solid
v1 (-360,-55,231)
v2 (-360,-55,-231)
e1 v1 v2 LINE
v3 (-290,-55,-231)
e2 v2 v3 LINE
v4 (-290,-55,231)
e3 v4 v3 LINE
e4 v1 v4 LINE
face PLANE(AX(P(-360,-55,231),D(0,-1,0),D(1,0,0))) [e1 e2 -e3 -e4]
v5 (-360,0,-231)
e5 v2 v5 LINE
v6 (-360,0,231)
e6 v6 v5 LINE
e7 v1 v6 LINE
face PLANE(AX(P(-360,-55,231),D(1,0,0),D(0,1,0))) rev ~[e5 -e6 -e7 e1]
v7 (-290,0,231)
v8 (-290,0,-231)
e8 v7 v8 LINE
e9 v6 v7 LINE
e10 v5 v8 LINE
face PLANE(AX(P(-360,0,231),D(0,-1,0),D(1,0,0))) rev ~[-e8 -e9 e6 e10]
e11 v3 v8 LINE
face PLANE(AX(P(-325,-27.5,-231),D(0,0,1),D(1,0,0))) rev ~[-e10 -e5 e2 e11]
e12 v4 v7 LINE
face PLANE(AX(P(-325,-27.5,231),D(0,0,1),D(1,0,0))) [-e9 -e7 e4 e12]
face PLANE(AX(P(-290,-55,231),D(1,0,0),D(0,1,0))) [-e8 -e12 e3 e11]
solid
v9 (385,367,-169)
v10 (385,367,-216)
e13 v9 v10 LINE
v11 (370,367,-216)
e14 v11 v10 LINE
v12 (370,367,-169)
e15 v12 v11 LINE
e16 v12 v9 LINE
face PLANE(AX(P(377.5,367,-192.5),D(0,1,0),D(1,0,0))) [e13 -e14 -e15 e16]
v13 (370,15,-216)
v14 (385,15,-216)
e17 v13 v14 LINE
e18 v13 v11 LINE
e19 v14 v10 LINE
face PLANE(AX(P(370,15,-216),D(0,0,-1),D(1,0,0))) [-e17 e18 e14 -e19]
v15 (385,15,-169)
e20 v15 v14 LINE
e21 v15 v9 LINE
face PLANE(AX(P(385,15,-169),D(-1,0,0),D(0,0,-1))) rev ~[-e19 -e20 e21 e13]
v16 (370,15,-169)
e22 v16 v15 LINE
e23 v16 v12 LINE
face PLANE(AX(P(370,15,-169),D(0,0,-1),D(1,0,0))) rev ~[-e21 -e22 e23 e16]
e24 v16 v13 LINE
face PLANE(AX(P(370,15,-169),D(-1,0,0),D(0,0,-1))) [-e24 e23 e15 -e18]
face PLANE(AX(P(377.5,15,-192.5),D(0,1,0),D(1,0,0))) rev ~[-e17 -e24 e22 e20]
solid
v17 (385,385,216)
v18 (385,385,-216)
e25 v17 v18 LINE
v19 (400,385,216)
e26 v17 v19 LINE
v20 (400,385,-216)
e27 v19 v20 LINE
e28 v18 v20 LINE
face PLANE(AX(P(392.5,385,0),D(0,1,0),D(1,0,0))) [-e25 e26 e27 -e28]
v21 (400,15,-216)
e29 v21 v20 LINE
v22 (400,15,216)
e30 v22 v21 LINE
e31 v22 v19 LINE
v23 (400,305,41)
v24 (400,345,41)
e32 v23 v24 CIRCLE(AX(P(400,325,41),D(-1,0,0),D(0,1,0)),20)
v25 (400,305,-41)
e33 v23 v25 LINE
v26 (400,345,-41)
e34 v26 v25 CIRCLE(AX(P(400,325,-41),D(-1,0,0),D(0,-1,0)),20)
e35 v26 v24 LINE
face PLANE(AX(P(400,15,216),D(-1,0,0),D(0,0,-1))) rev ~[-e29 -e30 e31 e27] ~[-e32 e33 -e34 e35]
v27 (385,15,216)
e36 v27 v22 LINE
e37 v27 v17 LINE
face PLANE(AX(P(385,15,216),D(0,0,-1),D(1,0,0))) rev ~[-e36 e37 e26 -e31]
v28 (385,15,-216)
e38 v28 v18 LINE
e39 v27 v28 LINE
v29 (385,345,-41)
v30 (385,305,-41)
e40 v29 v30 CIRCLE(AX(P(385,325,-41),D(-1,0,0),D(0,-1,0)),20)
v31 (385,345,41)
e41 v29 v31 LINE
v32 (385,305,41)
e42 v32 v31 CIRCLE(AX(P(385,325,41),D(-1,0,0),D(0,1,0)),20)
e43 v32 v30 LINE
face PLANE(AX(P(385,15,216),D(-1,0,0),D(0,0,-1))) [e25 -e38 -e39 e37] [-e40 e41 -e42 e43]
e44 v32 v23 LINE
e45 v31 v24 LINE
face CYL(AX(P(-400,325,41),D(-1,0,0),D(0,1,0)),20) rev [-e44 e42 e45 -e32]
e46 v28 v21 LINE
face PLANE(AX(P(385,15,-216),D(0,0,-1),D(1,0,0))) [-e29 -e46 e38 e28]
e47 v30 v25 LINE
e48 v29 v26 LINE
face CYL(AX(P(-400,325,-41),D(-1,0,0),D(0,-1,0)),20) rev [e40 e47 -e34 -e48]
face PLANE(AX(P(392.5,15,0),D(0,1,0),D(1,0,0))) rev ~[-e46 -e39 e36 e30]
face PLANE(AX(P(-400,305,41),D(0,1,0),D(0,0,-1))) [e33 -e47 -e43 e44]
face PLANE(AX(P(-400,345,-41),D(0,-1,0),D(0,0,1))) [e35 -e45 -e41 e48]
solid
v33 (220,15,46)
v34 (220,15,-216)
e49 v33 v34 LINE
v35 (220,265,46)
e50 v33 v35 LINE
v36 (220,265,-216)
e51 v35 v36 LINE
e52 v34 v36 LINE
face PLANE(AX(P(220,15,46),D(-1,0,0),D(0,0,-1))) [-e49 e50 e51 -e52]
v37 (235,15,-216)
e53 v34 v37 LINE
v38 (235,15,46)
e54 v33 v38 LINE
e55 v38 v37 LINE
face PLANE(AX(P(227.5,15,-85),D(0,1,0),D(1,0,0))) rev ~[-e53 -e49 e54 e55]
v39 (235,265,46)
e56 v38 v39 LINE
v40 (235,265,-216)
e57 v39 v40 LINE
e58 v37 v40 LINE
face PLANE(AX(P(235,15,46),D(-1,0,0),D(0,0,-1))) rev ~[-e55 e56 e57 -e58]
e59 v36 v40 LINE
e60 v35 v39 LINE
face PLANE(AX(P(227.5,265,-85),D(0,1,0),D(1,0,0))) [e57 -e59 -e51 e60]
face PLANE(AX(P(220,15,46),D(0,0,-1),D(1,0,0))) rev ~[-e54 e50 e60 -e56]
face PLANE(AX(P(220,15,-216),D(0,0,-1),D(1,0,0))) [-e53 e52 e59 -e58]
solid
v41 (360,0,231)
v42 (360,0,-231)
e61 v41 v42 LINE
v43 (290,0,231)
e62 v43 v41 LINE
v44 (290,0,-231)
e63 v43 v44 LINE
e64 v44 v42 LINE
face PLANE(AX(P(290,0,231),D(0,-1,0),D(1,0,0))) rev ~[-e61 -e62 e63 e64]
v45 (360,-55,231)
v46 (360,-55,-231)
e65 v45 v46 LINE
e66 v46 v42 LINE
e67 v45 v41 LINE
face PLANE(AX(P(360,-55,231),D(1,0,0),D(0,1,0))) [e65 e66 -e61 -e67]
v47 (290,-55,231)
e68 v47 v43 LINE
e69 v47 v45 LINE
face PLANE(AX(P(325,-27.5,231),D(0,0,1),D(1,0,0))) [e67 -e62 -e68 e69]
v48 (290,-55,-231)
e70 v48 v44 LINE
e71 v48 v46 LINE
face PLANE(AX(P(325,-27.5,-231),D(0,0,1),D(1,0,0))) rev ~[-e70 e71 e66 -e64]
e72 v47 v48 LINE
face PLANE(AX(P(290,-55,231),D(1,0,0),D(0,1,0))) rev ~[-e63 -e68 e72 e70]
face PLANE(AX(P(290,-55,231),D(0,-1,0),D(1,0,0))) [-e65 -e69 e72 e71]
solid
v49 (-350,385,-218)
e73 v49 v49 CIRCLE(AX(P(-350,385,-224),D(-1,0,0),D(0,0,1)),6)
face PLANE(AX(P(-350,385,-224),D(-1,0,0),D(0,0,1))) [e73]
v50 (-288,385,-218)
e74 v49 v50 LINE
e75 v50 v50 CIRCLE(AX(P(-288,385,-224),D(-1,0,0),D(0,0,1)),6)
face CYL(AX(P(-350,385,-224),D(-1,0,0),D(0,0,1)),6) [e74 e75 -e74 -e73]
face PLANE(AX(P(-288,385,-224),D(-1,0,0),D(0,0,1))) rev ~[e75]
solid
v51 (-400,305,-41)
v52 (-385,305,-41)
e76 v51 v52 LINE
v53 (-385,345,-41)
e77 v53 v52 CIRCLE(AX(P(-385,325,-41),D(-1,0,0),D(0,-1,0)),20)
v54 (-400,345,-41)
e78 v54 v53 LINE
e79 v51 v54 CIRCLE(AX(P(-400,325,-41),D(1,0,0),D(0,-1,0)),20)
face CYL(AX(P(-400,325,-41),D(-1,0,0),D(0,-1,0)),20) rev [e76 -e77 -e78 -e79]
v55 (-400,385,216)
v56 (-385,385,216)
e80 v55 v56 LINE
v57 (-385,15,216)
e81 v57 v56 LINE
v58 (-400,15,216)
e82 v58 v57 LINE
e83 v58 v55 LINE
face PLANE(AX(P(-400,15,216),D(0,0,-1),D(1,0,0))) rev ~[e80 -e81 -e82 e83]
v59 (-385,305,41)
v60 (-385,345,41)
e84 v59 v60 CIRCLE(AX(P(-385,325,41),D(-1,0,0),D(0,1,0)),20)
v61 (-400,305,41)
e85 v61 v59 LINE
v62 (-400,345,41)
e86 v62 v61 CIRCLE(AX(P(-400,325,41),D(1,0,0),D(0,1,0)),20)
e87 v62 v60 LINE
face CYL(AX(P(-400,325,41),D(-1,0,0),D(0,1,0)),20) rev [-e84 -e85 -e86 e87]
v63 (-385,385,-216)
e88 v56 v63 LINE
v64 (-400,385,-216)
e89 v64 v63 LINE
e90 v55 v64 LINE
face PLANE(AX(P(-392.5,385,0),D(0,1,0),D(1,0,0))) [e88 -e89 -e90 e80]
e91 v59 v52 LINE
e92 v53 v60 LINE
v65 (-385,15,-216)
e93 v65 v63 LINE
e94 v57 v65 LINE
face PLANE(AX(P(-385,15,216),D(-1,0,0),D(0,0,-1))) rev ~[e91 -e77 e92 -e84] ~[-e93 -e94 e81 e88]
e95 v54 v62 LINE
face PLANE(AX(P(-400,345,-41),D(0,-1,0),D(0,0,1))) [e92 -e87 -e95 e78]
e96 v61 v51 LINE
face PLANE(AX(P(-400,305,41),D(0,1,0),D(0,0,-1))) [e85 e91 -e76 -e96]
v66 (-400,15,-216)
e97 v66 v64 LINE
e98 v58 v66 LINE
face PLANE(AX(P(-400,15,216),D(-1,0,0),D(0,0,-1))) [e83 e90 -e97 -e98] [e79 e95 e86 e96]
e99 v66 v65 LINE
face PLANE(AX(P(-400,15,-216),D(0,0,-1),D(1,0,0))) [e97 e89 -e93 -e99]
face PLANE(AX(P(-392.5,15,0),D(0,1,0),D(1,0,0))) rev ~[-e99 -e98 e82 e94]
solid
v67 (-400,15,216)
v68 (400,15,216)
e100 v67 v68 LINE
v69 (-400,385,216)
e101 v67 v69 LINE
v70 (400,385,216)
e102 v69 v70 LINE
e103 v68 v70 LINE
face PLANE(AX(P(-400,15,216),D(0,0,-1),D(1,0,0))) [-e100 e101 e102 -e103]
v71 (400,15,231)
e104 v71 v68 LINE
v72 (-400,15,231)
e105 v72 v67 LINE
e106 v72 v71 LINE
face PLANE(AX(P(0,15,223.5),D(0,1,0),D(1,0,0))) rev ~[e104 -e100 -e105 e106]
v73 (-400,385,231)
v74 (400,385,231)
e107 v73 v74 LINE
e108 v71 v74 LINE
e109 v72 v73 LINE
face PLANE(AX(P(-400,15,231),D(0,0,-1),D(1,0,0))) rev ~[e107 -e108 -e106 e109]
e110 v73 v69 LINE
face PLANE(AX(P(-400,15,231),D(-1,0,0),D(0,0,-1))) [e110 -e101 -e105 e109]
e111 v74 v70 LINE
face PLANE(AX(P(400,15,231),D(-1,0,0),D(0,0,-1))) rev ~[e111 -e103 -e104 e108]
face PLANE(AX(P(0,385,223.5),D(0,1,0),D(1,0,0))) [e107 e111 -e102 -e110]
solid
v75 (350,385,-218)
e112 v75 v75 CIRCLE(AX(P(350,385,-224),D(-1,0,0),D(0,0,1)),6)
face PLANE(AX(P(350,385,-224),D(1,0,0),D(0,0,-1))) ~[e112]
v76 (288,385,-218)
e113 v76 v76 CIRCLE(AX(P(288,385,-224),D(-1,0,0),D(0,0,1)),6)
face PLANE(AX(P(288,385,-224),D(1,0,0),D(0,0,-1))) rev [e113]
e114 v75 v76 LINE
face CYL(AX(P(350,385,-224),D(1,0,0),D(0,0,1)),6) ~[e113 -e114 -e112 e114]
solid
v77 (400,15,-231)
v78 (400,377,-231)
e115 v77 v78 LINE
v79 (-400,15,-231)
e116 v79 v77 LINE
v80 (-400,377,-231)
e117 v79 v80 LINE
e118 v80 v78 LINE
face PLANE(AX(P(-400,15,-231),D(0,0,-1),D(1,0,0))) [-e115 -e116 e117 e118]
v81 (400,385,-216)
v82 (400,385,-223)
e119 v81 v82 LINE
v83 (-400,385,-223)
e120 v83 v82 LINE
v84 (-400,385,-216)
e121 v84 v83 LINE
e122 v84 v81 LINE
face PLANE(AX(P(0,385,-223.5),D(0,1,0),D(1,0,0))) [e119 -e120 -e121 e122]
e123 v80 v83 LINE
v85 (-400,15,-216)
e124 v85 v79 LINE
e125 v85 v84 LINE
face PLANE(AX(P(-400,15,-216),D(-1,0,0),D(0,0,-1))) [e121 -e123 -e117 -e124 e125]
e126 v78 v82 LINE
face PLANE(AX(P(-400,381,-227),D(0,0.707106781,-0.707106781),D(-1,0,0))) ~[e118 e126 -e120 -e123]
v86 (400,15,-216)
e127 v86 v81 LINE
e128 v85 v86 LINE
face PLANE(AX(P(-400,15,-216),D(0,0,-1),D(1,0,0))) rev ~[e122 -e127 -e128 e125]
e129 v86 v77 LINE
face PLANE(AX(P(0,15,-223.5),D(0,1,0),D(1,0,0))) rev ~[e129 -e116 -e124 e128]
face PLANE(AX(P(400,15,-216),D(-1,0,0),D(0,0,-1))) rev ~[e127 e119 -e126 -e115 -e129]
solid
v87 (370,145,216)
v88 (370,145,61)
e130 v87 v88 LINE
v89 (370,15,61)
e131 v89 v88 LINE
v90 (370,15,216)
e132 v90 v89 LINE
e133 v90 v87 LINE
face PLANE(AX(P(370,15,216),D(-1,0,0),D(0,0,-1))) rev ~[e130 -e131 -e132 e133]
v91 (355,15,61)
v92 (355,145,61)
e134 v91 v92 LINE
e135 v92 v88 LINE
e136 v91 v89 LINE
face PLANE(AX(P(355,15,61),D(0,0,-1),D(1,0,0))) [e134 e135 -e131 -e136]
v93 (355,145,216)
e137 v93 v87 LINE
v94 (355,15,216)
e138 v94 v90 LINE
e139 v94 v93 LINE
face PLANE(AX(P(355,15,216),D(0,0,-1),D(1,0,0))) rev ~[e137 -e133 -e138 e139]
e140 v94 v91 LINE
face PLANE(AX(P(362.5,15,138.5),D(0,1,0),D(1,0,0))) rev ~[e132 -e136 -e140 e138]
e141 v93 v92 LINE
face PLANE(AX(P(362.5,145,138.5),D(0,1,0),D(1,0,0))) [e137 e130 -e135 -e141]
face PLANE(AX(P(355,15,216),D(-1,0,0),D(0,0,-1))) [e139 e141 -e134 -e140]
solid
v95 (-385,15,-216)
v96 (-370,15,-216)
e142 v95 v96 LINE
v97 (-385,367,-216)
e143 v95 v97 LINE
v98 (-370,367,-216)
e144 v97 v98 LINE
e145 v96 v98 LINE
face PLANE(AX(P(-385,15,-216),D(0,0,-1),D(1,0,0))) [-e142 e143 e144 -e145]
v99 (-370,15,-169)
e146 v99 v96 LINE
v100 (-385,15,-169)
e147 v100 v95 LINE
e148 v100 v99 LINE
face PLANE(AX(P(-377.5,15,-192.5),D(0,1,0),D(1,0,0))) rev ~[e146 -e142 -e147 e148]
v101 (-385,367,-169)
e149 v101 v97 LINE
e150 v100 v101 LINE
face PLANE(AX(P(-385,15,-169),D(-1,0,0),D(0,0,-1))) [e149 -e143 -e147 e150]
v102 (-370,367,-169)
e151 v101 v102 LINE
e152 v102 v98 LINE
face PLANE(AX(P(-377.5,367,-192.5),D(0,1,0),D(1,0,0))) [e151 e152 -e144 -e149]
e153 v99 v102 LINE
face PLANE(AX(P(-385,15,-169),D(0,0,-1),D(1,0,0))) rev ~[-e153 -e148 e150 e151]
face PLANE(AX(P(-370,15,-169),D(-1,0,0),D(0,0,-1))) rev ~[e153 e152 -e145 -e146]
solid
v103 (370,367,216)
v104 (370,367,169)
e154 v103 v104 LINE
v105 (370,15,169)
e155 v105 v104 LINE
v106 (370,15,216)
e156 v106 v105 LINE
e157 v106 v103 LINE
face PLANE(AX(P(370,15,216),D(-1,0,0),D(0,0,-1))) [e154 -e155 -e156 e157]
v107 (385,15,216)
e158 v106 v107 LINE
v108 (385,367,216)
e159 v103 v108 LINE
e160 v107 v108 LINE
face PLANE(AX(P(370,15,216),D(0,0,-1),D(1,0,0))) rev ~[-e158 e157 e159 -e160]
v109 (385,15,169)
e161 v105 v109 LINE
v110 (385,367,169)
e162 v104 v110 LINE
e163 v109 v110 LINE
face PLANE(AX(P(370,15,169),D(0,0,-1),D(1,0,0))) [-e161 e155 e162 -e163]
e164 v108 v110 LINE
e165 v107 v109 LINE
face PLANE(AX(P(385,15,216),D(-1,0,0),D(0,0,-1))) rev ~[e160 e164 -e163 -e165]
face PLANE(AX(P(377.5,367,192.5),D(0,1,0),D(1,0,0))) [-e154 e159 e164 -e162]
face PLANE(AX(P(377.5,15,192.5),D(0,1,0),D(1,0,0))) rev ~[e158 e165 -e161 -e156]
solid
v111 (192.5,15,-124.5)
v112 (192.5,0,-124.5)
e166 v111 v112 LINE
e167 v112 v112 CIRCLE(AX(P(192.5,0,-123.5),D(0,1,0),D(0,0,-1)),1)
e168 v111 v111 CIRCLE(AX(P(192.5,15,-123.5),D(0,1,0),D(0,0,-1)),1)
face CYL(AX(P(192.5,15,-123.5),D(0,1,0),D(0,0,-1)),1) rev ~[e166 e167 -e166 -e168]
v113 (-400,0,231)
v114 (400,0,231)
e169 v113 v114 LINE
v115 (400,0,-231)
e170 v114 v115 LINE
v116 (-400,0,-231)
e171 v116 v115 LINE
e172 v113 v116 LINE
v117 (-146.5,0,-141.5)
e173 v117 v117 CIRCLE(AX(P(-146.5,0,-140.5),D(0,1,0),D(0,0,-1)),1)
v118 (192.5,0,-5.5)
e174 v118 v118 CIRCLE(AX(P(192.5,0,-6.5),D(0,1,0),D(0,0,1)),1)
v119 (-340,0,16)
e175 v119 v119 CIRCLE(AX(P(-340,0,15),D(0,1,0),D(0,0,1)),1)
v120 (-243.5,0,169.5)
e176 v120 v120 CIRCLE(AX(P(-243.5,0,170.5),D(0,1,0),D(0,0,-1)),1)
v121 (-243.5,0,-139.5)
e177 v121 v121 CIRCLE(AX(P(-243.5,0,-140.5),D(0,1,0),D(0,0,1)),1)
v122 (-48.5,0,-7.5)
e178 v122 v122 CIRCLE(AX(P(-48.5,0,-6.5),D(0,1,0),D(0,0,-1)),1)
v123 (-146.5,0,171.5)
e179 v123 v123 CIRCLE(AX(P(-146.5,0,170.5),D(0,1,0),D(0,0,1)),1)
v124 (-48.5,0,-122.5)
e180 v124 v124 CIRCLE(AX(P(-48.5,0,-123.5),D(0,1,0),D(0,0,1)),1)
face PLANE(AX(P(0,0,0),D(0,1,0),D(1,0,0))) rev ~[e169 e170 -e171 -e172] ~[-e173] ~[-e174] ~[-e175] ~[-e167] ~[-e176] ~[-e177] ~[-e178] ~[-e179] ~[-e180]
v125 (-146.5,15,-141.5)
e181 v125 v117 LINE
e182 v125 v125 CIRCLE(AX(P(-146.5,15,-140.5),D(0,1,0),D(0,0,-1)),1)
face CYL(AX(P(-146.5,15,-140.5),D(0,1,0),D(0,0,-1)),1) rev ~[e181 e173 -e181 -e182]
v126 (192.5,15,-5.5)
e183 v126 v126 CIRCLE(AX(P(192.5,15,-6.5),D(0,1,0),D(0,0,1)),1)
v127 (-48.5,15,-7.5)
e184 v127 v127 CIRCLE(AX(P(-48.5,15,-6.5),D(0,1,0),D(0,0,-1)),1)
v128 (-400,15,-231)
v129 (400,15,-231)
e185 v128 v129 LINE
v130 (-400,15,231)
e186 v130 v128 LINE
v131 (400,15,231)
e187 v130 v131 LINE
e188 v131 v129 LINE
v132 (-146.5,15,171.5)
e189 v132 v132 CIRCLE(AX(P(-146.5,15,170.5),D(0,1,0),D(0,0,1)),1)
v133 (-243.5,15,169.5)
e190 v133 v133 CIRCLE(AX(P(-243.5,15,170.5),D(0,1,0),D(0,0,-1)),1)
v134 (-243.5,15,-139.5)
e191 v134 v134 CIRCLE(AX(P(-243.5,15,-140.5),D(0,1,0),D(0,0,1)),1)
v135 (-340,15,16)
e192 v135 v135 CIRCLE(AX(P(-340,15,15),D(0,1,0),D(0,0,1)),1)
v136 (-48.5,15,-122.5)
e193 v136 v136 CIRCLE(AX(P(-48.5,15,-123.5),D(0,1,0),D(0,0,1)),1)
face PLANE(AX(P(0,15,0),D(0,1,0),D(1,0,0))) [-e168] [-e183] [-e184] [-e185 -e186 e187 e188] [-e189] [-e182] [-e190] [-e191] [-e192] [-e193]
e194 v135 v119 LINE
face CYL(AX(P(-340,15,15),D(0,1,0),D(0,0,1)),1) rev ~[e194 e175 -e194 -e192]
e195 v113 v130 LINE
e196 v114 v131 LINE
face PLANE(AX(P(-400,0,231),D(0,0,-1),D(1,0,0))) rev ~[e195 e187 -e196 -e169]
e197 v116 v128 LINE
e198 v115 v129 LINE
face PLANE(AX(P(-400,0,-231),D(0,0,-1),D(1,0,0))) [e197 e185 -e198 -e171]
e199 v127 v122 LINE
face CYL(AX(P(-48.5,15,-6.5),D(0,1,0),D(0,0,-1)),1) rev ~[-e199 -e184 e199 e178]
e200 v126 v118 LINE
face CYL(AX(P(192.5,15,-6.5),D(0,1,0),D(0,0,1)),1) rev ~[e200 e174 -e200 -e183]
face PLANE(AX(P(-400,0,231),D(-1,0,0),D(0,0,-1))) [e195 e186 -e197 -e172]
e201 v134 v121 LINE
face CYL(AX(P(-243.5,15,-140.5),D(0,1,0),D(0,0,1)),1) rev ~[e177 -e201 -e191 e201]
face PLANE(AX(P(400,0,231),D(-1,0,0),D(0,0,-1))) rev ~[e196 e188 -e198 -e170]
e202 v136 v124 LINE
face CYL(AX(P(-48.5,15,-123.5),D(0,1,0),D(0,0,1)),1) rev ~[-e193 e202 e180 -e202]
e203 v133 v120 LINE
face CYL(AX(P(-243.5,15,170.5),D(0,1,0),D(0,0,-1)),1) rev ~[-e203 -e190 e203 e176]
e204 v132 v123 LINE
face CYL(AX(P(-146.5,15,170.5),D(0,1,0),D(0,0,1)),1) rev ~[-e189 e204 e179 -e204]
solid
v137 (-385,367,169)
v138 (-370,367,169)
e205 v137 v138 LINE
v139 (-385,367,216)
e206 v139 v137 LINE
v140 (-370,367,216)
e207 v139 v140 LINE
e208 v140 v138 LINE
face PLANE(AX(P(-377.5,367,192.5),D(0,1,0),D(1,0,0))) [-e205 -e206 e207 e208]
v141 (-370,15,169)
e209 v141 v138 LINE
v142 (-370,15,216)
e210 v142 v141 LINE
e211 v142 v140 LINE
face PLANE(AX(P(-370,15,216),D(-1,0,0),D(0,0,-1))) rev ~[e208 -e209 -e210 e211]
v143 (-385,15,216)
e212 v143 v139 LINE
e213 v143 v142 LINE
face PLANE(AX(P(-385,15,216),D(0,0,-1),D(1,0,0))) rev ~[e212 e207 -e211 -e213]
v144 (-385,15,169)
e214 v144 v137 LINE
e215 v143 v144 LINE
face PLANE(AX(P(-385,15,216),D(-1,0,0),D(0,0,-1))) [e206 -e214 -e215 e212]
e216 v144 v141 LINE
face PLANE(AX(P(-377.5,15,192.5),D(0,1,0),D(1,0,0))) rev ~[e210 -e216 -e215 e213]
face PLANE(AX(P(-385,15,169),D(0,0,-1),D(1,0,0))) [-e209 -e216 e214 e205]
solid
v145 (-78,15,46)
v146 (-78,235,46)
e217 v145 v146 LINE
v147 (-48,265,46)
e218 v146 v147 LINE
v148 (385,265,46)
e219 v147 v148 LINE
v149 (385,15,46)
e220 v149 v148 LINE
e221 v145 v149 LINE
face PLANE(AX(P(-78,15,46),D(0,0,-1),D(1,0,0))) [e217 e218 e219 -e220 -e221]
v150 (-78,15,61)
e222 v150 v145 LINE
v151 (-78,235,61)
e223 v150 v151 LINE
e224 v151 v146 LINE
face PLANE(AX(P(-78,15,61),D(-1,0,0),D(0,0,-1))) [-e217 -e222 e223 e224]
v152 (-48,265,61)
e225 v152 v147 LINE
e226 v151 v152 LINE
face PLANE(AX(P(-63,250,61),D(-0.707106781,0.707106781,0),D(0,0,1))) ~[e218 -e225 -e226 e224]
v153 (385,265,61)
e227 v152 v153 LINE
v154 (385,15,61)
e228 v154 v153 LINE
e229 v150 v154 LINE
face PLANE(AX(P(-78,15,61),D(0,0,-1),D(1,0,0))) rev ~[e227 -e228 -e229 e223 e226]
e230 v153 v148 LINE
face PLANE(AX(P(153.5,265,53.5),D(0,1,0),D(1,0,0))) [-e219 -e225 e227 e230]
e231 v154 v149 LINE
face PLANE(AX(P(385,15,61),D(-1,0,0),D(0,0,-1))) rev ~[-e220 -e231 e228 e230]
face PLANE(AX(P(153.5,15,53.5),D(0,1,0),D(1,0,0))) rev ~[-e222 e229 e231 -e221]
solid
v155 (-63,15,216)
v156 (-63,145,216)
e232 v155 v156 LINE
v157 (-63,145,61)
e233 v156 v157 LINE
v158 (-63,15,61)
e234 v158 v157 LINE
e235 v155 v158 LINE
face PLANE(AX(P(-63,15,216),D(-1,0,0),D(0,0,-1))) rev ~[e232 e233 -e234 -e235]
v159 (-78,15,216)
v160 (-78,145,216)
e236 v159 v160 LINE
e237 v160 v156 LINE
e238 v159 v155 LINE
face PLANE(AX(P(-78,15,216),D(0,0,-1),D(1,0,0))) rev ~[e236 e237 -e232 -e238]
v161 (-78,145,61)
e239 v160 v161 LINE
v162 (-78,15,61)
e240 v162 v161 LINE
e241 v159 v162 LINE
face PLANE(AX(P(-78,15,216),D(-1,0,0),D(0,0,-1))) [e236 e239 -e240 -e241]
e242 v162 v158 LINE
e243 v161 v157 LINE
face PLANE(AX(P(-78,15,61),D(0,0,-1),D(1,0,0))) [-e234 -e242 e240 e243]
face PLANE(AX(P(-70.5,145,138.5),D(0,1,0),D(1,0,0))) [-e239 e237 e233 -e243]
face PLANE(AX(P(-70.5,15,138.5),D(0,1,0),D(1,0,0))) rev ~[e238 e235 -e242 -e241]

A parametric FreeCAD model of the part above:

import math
import FreeCAD as App
import Part
import Sketcher
Q = App.Units.Quantity


def edges_at(feature, points):
    """Names of the edges that pass closest to the given points."""
    edges = feature.Shape.Edges
    near = lambda p: min(range(len(edges)), key=lambda i: edges[i].distToShape(Part.Vertex(*p))[0])
    return sorted({f"Edge{near(p) + 1}" for p in points})


def add_polygon(sketch, points):
    """Adds a closed chain of lines whose ends are joined by coincident constraints."""
    first, n = sketch.GeometryCount, len(points)
    for a, b in zip(points, points[1:] + points[:1]):
        sketch.addGeometry(Part.LineSegment(App.Vector(*a, 0), App.Vector(*b, 0)), False)
    for i in range(n):
        sketch.addConstraint(Sketcher.Constraint("Coincident", first + i, 2, first + (i + 1) % n, 1))

doc = App.newDocument("Part")
body = doc.addObject("PartDesign::Body", "Body")

sketch1 = body.newObject("Sketcher::SketchObject", "Sketch")
sketch1.AttachmentSupport = (doc.getObject("XZ_Plane"), [""])
sketch1.MapMode = "FlatFace"
add_polygon(sketch1, [(-400, -231), (-400, 231), (400, 231), (400, -231)])
sketch1.addConstraint([
    Sketcher.Constraint("Vertical", 0),
    Sketcher.Constraint("Horizontal", 1),
    Sketcher.Constraint("Vertical", 2),
    Sketcher.Constraint("Horizontal", 3),
    Sketcher.Constraint("Symmetric", 0, 2, 2, 2, -1, 1),
    Sketcher.Constraint("DistanceX", 1, 1, 1, 2, Q("800 mm")),
    Sketcher.Constraint("DistanceY", 0, 1, 0, 2, Q("462 mm")),
])
pad1 = body.newObject("PartDesign::Pad", "Pad")
pad1.Profile = sketch1
pad1.Length = 15
pad1.Reversed = True

sketch2 = body.newObject("Sketcher::SketchObject", "Sketch001")
sketch2.AttachmentSupport = (doc.getObject("XZ_Plane"), [""])
sketch2.MapMode = "FlatFace"
sketch2.AttachmentOffset = App.Placement(App.Vector(0, 0, -15), App.Rotation())
sketch2.addGeometry([
    Part.Circle(App.Vector(-243.5, -140.5, 0), App.Vector(0, 0, 1), 1),
    Part.Circle(App.Vector(-48.5, -123.5, 0), App.Vector(0, 0, 1), 1),
    Part.Circle(App.Vector(-146.5, -140.5, 0), App.Vector(0, 0, 1), 1),
    Part.Circle(App.Vector(192.5, -123.5, 0), App.Vector(0, 0, 1), 1),
    Part.Circle(App.Vector(-48.5, -6.5, 0), App.Vector(0, 0, 1), 1),
    Part.Circle(App.Vector(192.5, -6.5, 0), App.Vector(0, 0, 1), 1),
    Part.Circle(App.Vector(-243.5, 170.5, 0), App.Vector(0, 0, 1), 1),
    Part.Circle(App.Vector(-146.5, 170.5, 0), App.Vector(0, 0, 1), 1),
    Part.Circle(App.Vector(-340, 15, 0), App.Vector(0, 0, 1), 1),
], False)
sketch2.addConstraint([
    Sketcher.Constraint("Equal", 0, 1),
    Sketcher.Constraint("Equal", 1, 2),
    Sketcher.Constraint("Equal", 2, 3),
    Sketcher.Constraint("Equal", 3, 4),
    Sketcher.Constraint("Equal", 4, 5),
    Sketcher.Constraint("Equal", 5, 6),
    Sketcher.Constraint("Equal", 6, 7),
    Sketcher.Constraint("Equal", 7, 8),
    Sketcher.Constraint("Horizontal", 0, 3, 2, 3),
    Sketcher.Constraint("Horizontal", 1, 3, 3, 3),
    Sketcher.Constraint("Horizontal", 4, 3, 5, 3),
    Sketcher.Constraint("Horizontal", 6, 3, 7, 3),
    Sketcher.Constraint("Vertical", 1, 3, 4, 3),
    Sketcher.Constraint("Vertical", 3, 3, 5, 3),
    Sketcher.Constraint("Vertical", 0, 3, 6, 3),
    Sketcher.Constraint("Vertical", 2, 3, 7, 3),
    Sketcher.Constraint("Diameter", 0, Q("2 mm")),
    Sketcher.Constraint("DistanceX", 8, 3, -1, 1, Q("340 mm")),
    Sketcher.Constraint("DistanceY", -1, 1, 8, 3, Q("15 mm")),
    Sketcher.Constraint("DistanceX", 0, 3, 1, 3, Q("195 mm")),
    Sketcher.Constraint("DistanceY", 0, 3, 1, 3, Q("17 mm")),
    Sketcher.Constraint("DistanceX", 0, 3, 2, 3, Q("97 mm")),
    Sketcher.Constraint("DistanceX", 1, 3, 3, 3, Q("241 mm")),
    Sketcher.Constraint("DistanceY", 1, 3, 4, 3, Q("117 mm")),
    Sketcher.Constraint("DistanceY", 4, 3, 6, 3, Q("177 mm")),
    Sketcher.Constraint("DistanceX", 0, 3, -1, 1, Q("243.5 mm")),
    Sketcher.Constraint("DistanceY", 0, 3, -1, 1, Q("140.5 mm")),
])
pocket1 = body.newObject("PartDesign::Pocket", "Pocket")
pocket1.Profile = sketch2
pocket1.Length = 15
pocket1.Reversed = True
body2 = doc.addObject("PartDesign::Body", "Body001")

sketch3 = body2.newObject("Sketcher::SketchObject", "Sketch002")
sketch3.AttachmentSupport = (doc.getObject("XY_Plane001"), [""])
sketch3.MapMode = "FlatFace"
sketch3.AttachmentOffset = App.Placement(App.Vector(0, 0, 231), App.Rotation())
add_polygon(sketch3, [(-360, 0), (-360, -55), (-290, -55), (-290, 0)])
sketch3.addConstraint([
    Sketcher.Constraint("Vertical", 0),
    Sketcher.Constraint("Horizontal", 1),
    Sketcher.Constraint("Vertical", 2),
    Sketcher.Constraint("Horizontal", 3),
    Sketcher.Constraint("PointOnObject", 2, 2, -1),
    Sketcher.Constraint("DistanceX", 1, 1, 1, 2, Q("70 mm")),
    Sketcher.Constraint("DistanceY", 0, 2, 0, 1, Q("55 mm")),
    Sketcher.Constraint("DistanceX", 0, 2, -1, 1, Q("360 mm")),
])
pad2 = body2.newObject("PartDesign::Pad", "Pad001")
pad2.Profile = sketch3
pad2.Length = 462
pad2.Reversed = True
body3 = doc.addObject("PartDesign::Body", "Body002")

sketch4 = body3.newObject("Sketcher::SketchObject", "Sketch003")
sketch4.AttachmentSupport = (doc.getObject("XY_Plane002"), [""])
sketch4.MapMode = "FlatFace"
sketch4.AttachmentOffset = App.Placement(App.Vector(0, 0, 231), App.Rotation())
add_polygon(sketch4, [(290, 0), (290, -55), (360, -55), (360, 0)])
sketch4.addConstraint([
    Sketcher.Constraint("Vertical", 0),
    Sketcher.Constraint("Horizontal", 1),
    Sketcher.Constraint("Vertical", 2),
    Sketcher.Constraint("Horizontal", 3),
    Sketcher.Constraint("PointOnObject", 2, 2, -1),
    Sketcher.Constraint("DistanceX", 1, 1, 1, 2, Q("70 mm")),
    Sketcher.Constraint("DistanceY", 0, 2, 0, 1, Q("55 mm")),
    Sketcher.Constraint("DistanceX", -1, 1, 0, 2, Q("290 mm")),
])
pad3 = body3.newObject("PartDesign::Pad", "Pad002")
pad3.Profile = sketch4
pad3.Length = 462
pad3.Reversed = True
body4 = doc.addObject("PartDesign::Body", "Body003")

sketch5 = body4.newObject("Sketcher::SketchObject", "Sketch004")
sketch5.AttachmentSupport = (doc.getObject("XZ_Plane003"), [""])
sketch5.MapMode = "FlatFace"
sketch5.AttachmentOffset = App.Placement(App.Vector(0, 0, -15), App.Rotation())
add_polygon(sketch5, [(-400, -231), (-400, -216), (400, -216), (400, -231)])
sketch5.addConstraint([
    Sketcher.Constraint("Vertical", 0),
    Sketcher.Constraint("Horizontal", 1),
    Sketcher.Constraint("Vertical", 2),
    Sketcher.Constraint("Horizontal", 3),
    Sketcher.Constraint("DistanceX", 1, 1, 1, 2, Q("800 mm")),
    Sketcher.Constraint("DistanceY", 0, 1, 0, 2, Q("15 mm")),
    Sketcher.Constraint("DistanceX", 0, 2, -1, 1, Q("400 mm")),
    Sketcher.Constraint("DistanceY", 0, 2, -1, 1, Q("216 mm")),
])
pad4 = body4.newObject("PartDesign::Pad", "Pad003")
pad4.Profile = sketch5
pad4.Length = 370
pad4.Reversed = True
doc.recompute()

chamfer = body4.newObject("PartDesign::Chamfer", "Chamfer")
chamfer.Base = (pad4, edges_at(pad4, [(0, 385, -231)]))
chamfer.Size = 8
body5 = doc.addObject("PartDesign::Body", "Body004")

sketch6 = body5.newObject("Sketcher::SketchObject", "Sketch005")
sketch6.AttachmentSupport = (doc.getObject("XZ_Plane004"), [""])
sketch6.MapMode = "FlatFace"
sketch6.AttachmentOffset = App.Placement(App.Vector(0, 0, -15), App.Rotation())
add_polygon(sketch6, [(-400, 216), (-400, 231), (400, 231), (400, 216)])
sketch6.addConstraint([
    Sketcher.Constraint("Vertical", 0),
    Sketcher.Constraint("Horizontal", 1),
    Sketcher.Constraint("Vertical", 2),
    Sketcher.Constraint("Horizontal", 3),
    Sketcher.Constraint("DistanceX", 1, 1, 1, 2, Q("800 mm")),
    Sketcher.Constraint("DistanceY", 0, 1, 0, 2, Q("15 mm")),
    Sketcher.Constraint("DistanceX", 0, 2, -1, 1, Q("400 mm")),
    Sketcher.Constraint("DistanceY", -1, 1, 0, 2, Q("231 mm")),
])
pad5 = body5.newObject("PartDesign::Pad", "Pad004")
pad5.Profile = sketch6
pad5.Length = 370
pad5.Reversed = True
body6 = doc.addObject("PartDesign::Body", "Body005")

sketch7 = body6.newObject("Sketcher::SketchObject", "Sketch006")
sketch7.AttachmentSupport = (doc.getObject("XZ_Plane005"), [""])
sketch7.MapMode = "FlatFace"
sketch7.AttachmentOffset = App.Placement(App.Vector(0, 0, -15), App.Rotation())
add_polygon(sketch7, [(-400, -216), (-400, 216), (-385, 216), (-385, -216)])
sketch7.addConstraint([
    Sketcher.Constraint("Vertical", 0),
    Sketcher.Constraint("Horizontal", 1),
    Sketcher.Constraint("Vertical", 2),
    Sketcher.Constraint("Horizontal", 3),
    Sketcher.Constraint("DistanceX", 1, 1, 1, 2, Q("15 mm")),
    Sketcher.Constraint("DistanceY", 0, 1, 0, 2, Q("432 mm")),
    Sketcher.Constraint("DistanceX", 0, 2, -1, 1, Q("400 mm")),
    Sketcher.Constraint("DistanceY", -1, 1, 0, 2, Q("216 mm")),
])
pad6 = body6.newObject("PartDesign::Pad", "Pad005")
pad6.Profile = sketch7
pad6.Length = 370
pad6.Reversed = True
body7 = doc.addObject("PartDesign::Body", "Body006")

sketch8 = body7.newObject("Sketcher::SketchObject", "Sketch007")
sketch8.AttachmentSupport = (doc.getObject("XZ_Plane006"), [""])
sketch8.MapMode = "FlatFace"
sketch8.AttachmentOffset = App.Placement(App.Vector(0, 0, -15), App.Rotation())
add_polygon(sketch8, [(385, -216), (385, 216), (400, 216), (400, -216)])
sketch8.addConstraint([
    Sketcher.Constraint("Vertical", 0),
    Sketcher.Constraint("Horizontal", 1),
    Sketcher.Constraint("Vertical", 2),
    Sketcher.Constraint("Horizontal", 3),
    Sketcher.Constraint("DistanceX", 1, 1, 1, 2, Q("15 mm")),
    Sketcher.Constraint("DistanceY", 0, 1, 0, 2, Q("432 mm")),
    Sketcher.Constraint("DistanceX", -1, 1, 0, 2, Q("385 mm")),
    Sketcher.Constraint("DistanceY", -1, 1, 0, 2, Q("216 mm")),
])
pad7 = body7.newObject("PartDesign::Pad", "Pad006")
pad7.Profile = sketch8
pad7.Length = 370
pad7.Reversed = True
body8 = doc.addObject("PartDesign::Body", "Body007")

sketch9 = body8.newObject("Sketcher::SketchObject", "Sketch008")
sketch9.AttachmentSupport = (doc.getObject("XZ_Plane007"), [""])
sketch9.MapMode = "FlatFace"
sketch9.AttachmentOffset = App.Placement(App.Vector(0, 0, -15), App.Rotation())
add_polygon(sketch9, [(-385, -216), (-385, -169), (-370, -169), (-370, -216)])
sketch9.addConstraint([
    Sketcher.Constraint("Vertical", 0),
    Sketcher.Constraint("Horizontal", 1),
    Sketcher.Constraint("Vertical", 2),
    Sketcher.Constraint("Horizontal", 3),
    Sketcher.Constraint("DistanceX", 1, 1, 1, 2, Q("15 mm")),
    Sketcher.Constraint("DistanceY", 0, 1, 0, 2, Q("47 mm")),
    Sketcher.Constraint("DistanceX", 0, 2, -1, 1, Q("385 mm")),
    Sketcher.Constraint("DistanceY", 0, 2, -1, 1, Q("169 mm")),
])
pad8 = body8.newObject("PartDesign::Pad", "Pad007")
pad8.Profile = sketch9
pad8.Length = 352
pad8.Reversed = True
body9 = doc.addObject("PartDesign::Body", "Body008")

sketch10 = body9.newObject("Sketcher::SketchObject", "Sketch009")
sketch10.AttachmentSupport = (doc.getObject("XZ_Plane008"), [""])
sketch10.MapMode = "FlatFace"
sketch10.AttachmentOffset = App.Placement(App.Vector(0, 0, -15), App.Rotation())
add_polygon(sketch10, [(-385, 169), (-385, 216), (-370, 216), (-370, 169)])
sketch10.addConstraint([
    Sketcher.Constraint("Vertical", 0),
    Sketcher.Constraint("Horizontal", 1),
    Sketcher.Constraint("Vertical", 2),
    Sketcher.Constraint("Horizontal", 3),
    Sketcher.Constraint("DistanceX", 1, 1, 1, 2, Q("15 mm")),
    Sketcher.Constraint("DistanceY", 0, 1, 0, 2, Q("47 mm")),
    Sketcher.Constraint("DistanceX", 0, 2, -1, 1, Q("385 mm")),
    Sketcher.Constraint("DistanceY", -1, 1, 0, 2, Q("216 mm")),
])
pad9 = body9.newObject("PartDesign::Pad", "Pad008")
pad9.Profile = sketch10
pad9.Length = 352
pad9.Reversed = True
body10 = doc.addObject("PartDesign::Body", "Body009")

sketch11 = body10.newObject("Sketcher::SketchObject", "Sketch010")
sketch11.AttachmentSupport = (doc.getObject("XZ_Plane009"), [""])
sketch11.MapMode = "FlatFace"
sketch11.AttachmentOffset = App.Placement(App.Vector(0, 0, -15), App.Rotation())
add_polygon(sketch11, [(370, 169), (370, 216), (385, 216), (385, 169)])
sketch11.addConstraint([
    Sketcher.Constraint("Vertical", 0),
    Sketcher.Constraint("Horizontal", 1),
    Sketcher.Constraint("Vertical", 2),
    Sketcher.Constraint("Horizontal", 3),
    Sketcher.Constraint("DistanceX", 1, 1, 1, 2, Q("15 mm")),
    Sketcher.Constraint("DistanceY", 0, 1, 0, 2, Q("47 mm")),
    Sketcher.Constraint("DistanceX", -1, 1, 0, 2, Q("370 mm")),
    Sketcher.Constraint("DistanceY", -1, 1, 0, 2, Q("216 mm")),
])
pad10 = body10.newObject("PartDesign::Pad", "Pad009")
pad10.Profile = sketch11
pad10.Length = 352
pad10.Reversed = True
body11 = doc.addObject("PartDesign::Body", "Body010")

sketch12 = body11.newObject("Sketcher::SketchObject", "Sketch011")
sketch12.AttachmentSupport = (doc.getObject("XZ_Plane010"), [""])
sketch12.MapMode = "FlatFace"
sketch12.AttachmentOffset = App.Placement(App.Vector(0, 0, -15), App.Rotation())
add_polygon(sketch12, [(370, -216), (370, -169), (385, -169), (385, -216)])
sketch12.addConstraint([
    Sketcher.Constraint("Vertical", 0),
    Sketcher.Constraint("Horizontal", 1),
    Sketcher.Constraint("Vertical", 2),
    Sketcher.Constraint("Horizontal", 3),
    Sketcher.Constraint("DistanceX", 1, 1, 1, 2, Q("15 mm")),
    Sketcher.Constraint("DistanceY", 0, 1, 0, 2, Q("47 mm")),
    Sketcher.Constraint("DistanceX", -1, 1, 0, 2, Q("370 mm")),
    Sketcher.Constraint("DistanceY", 0, 2, -1, 1, Q("169 mm")),
])
pad11 = body11.newObject("PartDesign::Pad", "Pad010")
pad11.Profile = sketch12
pad11.Length = 352
pad11.Reversed = True
body12 = doc.addObject("PartDesign::Body", "Body011")

sketch13 = body12.newObject("Sketcher::SketchObject", "Sketch012")
sketch13.AttachmentSupport = (doc.getObject("YZ_Plane011"), [""])
sketch13.MapMode = "FlatFace"
sketch13.AttachmentOffset = App.Placement(App.Vector(0, 0, -400), App.Rotation())
sketch13.addGeometry([
    Part.LineSegment(App.Vector(345, 41, 0), App.Vector(345, -41, 0)),
    Part.ArcOfCircle(Part.Circle(App.Vector(325, -41, 0), App.Vector(0, 0, 1), 20), math.radians(180), math.radians(360)),
    Part.LineSegment(App.Vector(305, -41, 0), App.Vector(305, 41, 0)),
    Part.ArcOfCircle(Part.Circle(App.Vector(325, 41, 0), App.Vector(0, 0, 1), 20), math.radians(0), math.radians(180)),
], False)
sketch13.addConstraint([
    Sketcher.Constraint("Tangent", 0, 2, 1, 2),
    Sketcher.Constraint("Tangent", 1, 1, 2, 1),
    Sketcher.Constraint("Tangent", 2, 2, 3, 2),
    Sketcher.Constraint("Tangent", 3, 1, 0, 1),
    Sketcher.Constraint("Vertical", 0),
    Sketcher.Constraint("Vertical", 2),
    Sketcher.Constraint("Radius", 1, Q("20 mm")),
    Sketcher.Constraint("DistanceY", 0, 2, 0, 1, Q("82 mm")),
    Sketcher.Constraint("DistanceX", -1, 1, 1, 3, Q("325 mm")),
    Sketcher.Constraint("DistanceY", 1, 3, -1, 1, Q("41 mm")),
])
pad12 = body12.newObject("PartDesign::Pad", "Pad011")
pad12.Profile = sketch13
pad12.Length = 918.379965
doc.recompute()

body13 = doc.addObject("PartDesign::Body", "Body012")
body13.BaseFeature = body12
boolean = body6.newObject("PartDesign::Boolean", "Boolean")
boolean.Type = "Cut"
boolean.addObjects([body13])
doc.recompute()

boolean2 = body7.newObject("PartDesign::Boolean", "Boolean001")
boolean2.Type = "Cut"
boolean2.addObjects([body12])
body14 = doc.addObject("PartDesign::Body", "Body013")

sketch14 = body14.newObject("Sketcher::SketchObject", "Sketch013")
sketch14.AttachmentSupport = (doc.getObject("YZ_Plane013"), [""])
sketch14.MapMode = "FlatFace"
sketch14.AttachmentOffset = App.Placement(App.Vector(0, 0, -350), App.Rotation())
sketch14.addGeometry(Part.Circle(App.Vector(385, -224, 0), App.Vector(0, 0, 1), 6), False)
sketch14.addConstraint([
    Sketcher.Constraint("Diameter", 0, Q("12 mm")),
    Sketcher.Constraint("DistanceX", -1, 1, 0, 3, Q("385 mm")),
    Sketcher.Constraint("DistanceY", 0, 3, -1, 1, Q("224 mm")),
])
pad13 = body14.newObject("PartDesign::Pad", "Pad012")
pad13.Profile = sketch14
pad13.Length = 62
body15 = doc.addObject("PartDesign::Body", "Body014")
doc.recompute()

mirroring = doc.addObject("Part::Mirroring", "Mirroring")
mirroring.Source = body14
mirroring.Base = App.Vector(0, 0, 0)
mirroring.Normal = App.Vector(1, 0, 0)
body15.BaseFeature = mirroring
doc.recompute()
body16 = doc.addObject("PartDesign::Body", "Body015")

sketch15 = body16.newObject("Sketcher::SketchObject", "Sketch014")
sketch15.AttachmentSupport = (doc.getObject("XZ_Plane015"), [""])
sketch15.MapMode = "FlatFace"
sketch15.AttachmentOffset = App.Placement(App.Vector(0, 0, -15), App.Rotation())
add_polygon(sketch15, [(-78, 61), (-78, 216), (-63, 216), (-63, 61)])
sketch15.addConstraint([
    Sketcher.Constraint("Vertical", 0),
    Sketcher.Constraint("Horizontal", 1),
    Sketcher.Constraint("Vertical", 2),
    Sketcher.Constraint("Horizontal", 3),
    Sketcher.Constraint("DistanceX", 1, 1, 1, 2, Q("15 mm")),
    Sketcher.Constraint("DistanceY", 0, 1, 0, 2, Q("155 mm")),
    Sketcher.Constraint("DistanceX", 0, 2, -1, 1, Q("78 mm")),
    Sketcher.Constraint("DistanceY", -1, 1, 0, 2, Q("216 mm")),
])
pad14 = body16.newObject("PartDesign::Pad", "Pad013")
pad14.Profile = sketch15
pad14.Length = 130
pad14.Reversed = True
body17 = doc.addObject("PartDesign::Body", "Body016")

sketch16 = body17.newObject("Sketcher::SketchObject", "Sketch015")
sketch16.AttachmentSupport = (doc.getObject("XZ_Plane016"), [""])
sketch16.MapMode = "FlatFace"
sketch16.AttachmentOffset = App.Placement(App.Vector(0, 0, -15), App.Rotation())
add_polygon(sketch16, [(355, 61), (355, 216), (370, 216), (370, 61)])
sketch16.addConstraint([
    Sketcher.Constraint("Vertical", 0),
    Sketcher.Constraint("Horizontal", 1),
    Sketcher.Constraint("Vertical", 2),
    Sketcher.Constraint("Horizontal", 3),
    Sketcher.Constraint("DistanceX", 1, 1, 1, 2, Q("15 mm")),
    Sketcher.Constraint("DistanceY", 0, 1, 0, 2, Q("155 mm")),
    Sketcher.Constraint("DistanceX", -1, 1, 0, 2, Q("355 mm")),
    Sketcher.Constraint("DistanceY", -1, 1, 0, 2, Q("216 mm")),
])
pad15 = body17.newObject("PartDesign::Pad", "Pad014")
pad15.Profile = sketch16
pad15.Length = 130
pad15.Reversed = True
body18 = doc.addObject("PartDesign::Body", "Body017")

sketch17 = body18.newObject("Sketcher::SketchObject", "Sketch016")
sketch17.AttachmentSupport = (doc.getObject("XZ_Plane017"), [""])
sketch17.MapMode = "FlatFace"
sketch17.AttachmentOffset = App.Placement(App.Vector(0, 0, -15), App.Rotation())
add_polygon(sketch17, [(-78, 46), (-78, 61), (385, 61), (385, 46)])
sketch17.addConstraint([
    Sketcher.Constraint("Vertical", 0),
    Sketcher.Constraint("Horizontal", 1),
    Sketcher.Constraint("Vertical", 2),
    Sketcher.Constraint("Horizontal", 3),
    Sketcher.Constraint("DistanceX", 1, 1, 1, 2, Q("463 mm")),
    Sketcher.Constraint("DistanceY", 0, 1, 0, 2, Q("15 mm")),
    Sketcher.Constraint("DistanceX", 0, 2, -1, 1, Q("78 mm")),
    Sketcher.Constraint("DistanceY", -1, 1, 0, 2, Q("61 mm")),
])
pad16 = body18.newObject("PartDesign::Pad", "Pad015")
pad16.Profile = sketch17
pad16.Length = 250
pad16.Reversed = True
doc.recompute()

chamfer2 = body18.newObject("PartDesign::Chamfer", "Chamfer001")
chamfer2.Base = (pad16, edges_at(pad16, [(-78, 265, 53.5)]))
chamfer2.Size = 30
body19 = doc.addObject("PartDesign::Body", "Body018")

sketch18 = body19.newObject("Sketcher::SketchObject", "Sketch017")
sketch18.AttachmentSupport = (doc.getObject("XZ_Plane018"), [""])
sketch18.MapMode = "FlatFace"
sketch18.AttachmentOffset = App.Placement(App.Vector(0, 0, -15), App.Rotation())
add_polygon(sketch18, [(220, -216), (220, 46), (235, 46), (235, -216)])
sketch18.addConstraint([
    Sketcher.Constraint("Vertical", 0),
    Sketcher.Constraint("Horizontal", 1),
    Sketcher.Constraint("Vertical", 2),
    Sketcher.Constraint("Horizontal", 3),
    Sketcher.Constraint("DistanceX", 1, 1, 1, 2, Q("15 mm")),
    Sketcher.Constraint("DistanceY", 0, 1, 0, 2, Q("262 mm")),
    Sketcher.Constraint("DistanceX", -1, 1, 0, 2, Q("220 mm")),
    Sketcher.Constraint("DistanceY", -1, 1, 0, 2, Q("46 mm")),
])
pad17 = body19.newObject("PartDesign::Pad", "Pad016")
pad17.Profile = sketch18
pad17.Length = 250
pad17.Reversed = True

doc.recompute()
